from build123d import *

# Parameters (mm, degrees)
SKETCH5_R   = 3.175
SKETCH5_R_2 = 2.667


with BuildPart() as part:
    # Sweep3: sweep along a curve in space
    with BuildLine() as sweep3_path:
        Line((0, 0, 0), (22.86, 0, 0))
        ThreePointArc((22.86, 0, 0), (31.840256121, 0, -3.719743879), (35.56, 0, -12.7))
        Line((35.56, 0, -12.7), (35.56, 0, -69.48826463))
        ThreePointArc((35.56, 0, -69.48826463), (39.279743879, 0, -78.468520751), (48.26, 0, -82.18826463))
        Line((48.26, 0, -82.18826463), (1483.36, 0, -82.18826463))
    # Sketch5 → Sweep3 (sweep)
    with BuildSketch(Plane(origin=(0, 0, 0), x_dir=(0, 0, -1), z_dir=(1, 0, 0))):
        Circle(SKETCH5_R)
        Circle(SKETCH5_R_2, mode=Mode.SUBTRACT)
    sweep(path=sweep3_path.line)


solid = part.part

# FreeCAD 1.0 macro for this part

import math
import FreeCAD as App
import Part
import Sketcher
from FreeCAD import Vector
Q = App.Units.Quantity

doc = App.newDocument("Part")
params = doc.addObject("Spreadsheet::Sheet", "Params")
for row, (alias, value) in enumerate([
    ("sketch1_diameter", "0.25 in"),
    ("sketch1_diameter2", "0.21 in"),
    ("sketch2_radius", "0.5 in"),
    ("sketch2_width", "0.9 in"),
    ("sketch2_width2", "56.5 in"),
], start=1):
    params.set(f"A{row}", alias)
    params.set(f"B{row}", "=" + value)
    params.setAlias(f"B{row}", alias)

body = doc.addObject("PartDesign::Body", "Body")

sketch1 = body.newObject("Sketcher::SketchObject", "Sketch")
sketch1.AttachmentSupport = (doc.getObject("YZ_Plane"), [""])
sketch1.MapMode = "FlatFace"
sketch1.addGeometry(Part.Circle(Vector(0, 0, 0), Vector(0, 0, 1), 3.2), False)
sketch1.addGeometry(Part.Circle(Vector(0, 0, 0), Vector(0, 0, 1), 2.7), False)
sketch1.addConstraint(Sketcher.Constraint("Coincident", 0, 3, -1, 1))
sketch1.addConstraint(Sketcher.Constraint("Coincident", 1, 3, -1, 1))
sketch1.addConstraint(Sketcher.Constraint("Diameter", 0, Q("0.25 in")))
sketch1.addConstraint(Sketcher.Constraint("Diameter", 1, Q("0.21 in")))
sketch1.setExpression("Constraints[2]", "Params.sketch1_diameter")
sketch1.setExpression("Constraints[3]", "Params.sketch1_diameter2")

sketch2 = body.newObject("Sketcher::SketchObject", "Sketch001")
sketch2.AttachmentSupport = (doc.getObject("XZ_Plane"), [""])
sketch2.MapMode = "FlatFace"
sketch2.addGeometry(Part.LineSegment(Vector(0, 0, 0), Vector(23, 0, 0)), False)
sketch2.addGeometry(Part.ArcOfCircle(Part.Circle(Vector(23, -13, 0), Vector(0, 0, 1), 13), math.radians(0), math.radians(90)), False)
sketch2.addGeometry(Part.LineSegment(Vector(36, -13, 0), Vector(36, -69, 0)), False)
sketch2.addGeometry(Part.ArcOfCircle(Part.Circle(Vector(48, -69, 0), Vector(0, 0, 1), 13), math.radians(180), math.radians(270)), False)
sketch2.addGeometry(Part.LineSegment(Vector(48, -82, 0), Vector(1483, -82, 0)), False)
sketch2.addConstraint(Sketcher.Constraint("Tangent", 0, 2, 1, 2))
sketch2.addConstraint(Sketcher.Constraint("Tangent", 1, 1, 2, 1))
sketch2.addConstraint(Sketcher.Constraint("Tangent", 2, 2, 3, 1))
sketch2.addConstraint(Sketcher.Constraint("Tangent", 3, 2, 4, 1))
sketch2.addConstraint(Sketcher.Constraint("Horizontal", 0))
sketch2.addConstraint(Sketcher.Constraint("Vertical", 2))
sketch2.addConstraint(Sketcher.Constraint("Horizontal", 4))
sketch2.addConstraint(Sketcher.Constraint("Coincident", 0, 1, -1, 1))
sketch2.addConstraint(Sketcher.Constraint("Equal", 1, 3))
sketch2.addConstraint(Sketcher.Constraint("Radius", 1, Q("0.5 in")))
sketch2.addConstraint(Sketcher.Constraint("DistanceX", 0, 1, 0, 2, Q("0.9 in")))
sketch2.addConstraint(Sketcher.Constraint("DistanceX", 4, 1, 4, 2, Q("56.5 in")))
sketch2.addConstraint(Sketcher.Constraint("DistanceY", 2, 2, 2, 1, 56.788265))
sketch2.setExpression("Constraints[9]", "Params.sketch2_radius")
sketch2.setExpression("Constraints[10]", "Params.sketch2_width")
sketch2.setExpression("Constraints[11]", "Params.sketch2_width2")
doc.recompute()

additivepipe = body.newObject("PartDesign::AdditivePipe", "AdditivePipe")
additivepipe.Profile = sketch1
additivepipe.Spine = (sketch2, ["Edge1", "Edge2", "Edge3", "Edge4", "Edge5"])

doc.recompute()
